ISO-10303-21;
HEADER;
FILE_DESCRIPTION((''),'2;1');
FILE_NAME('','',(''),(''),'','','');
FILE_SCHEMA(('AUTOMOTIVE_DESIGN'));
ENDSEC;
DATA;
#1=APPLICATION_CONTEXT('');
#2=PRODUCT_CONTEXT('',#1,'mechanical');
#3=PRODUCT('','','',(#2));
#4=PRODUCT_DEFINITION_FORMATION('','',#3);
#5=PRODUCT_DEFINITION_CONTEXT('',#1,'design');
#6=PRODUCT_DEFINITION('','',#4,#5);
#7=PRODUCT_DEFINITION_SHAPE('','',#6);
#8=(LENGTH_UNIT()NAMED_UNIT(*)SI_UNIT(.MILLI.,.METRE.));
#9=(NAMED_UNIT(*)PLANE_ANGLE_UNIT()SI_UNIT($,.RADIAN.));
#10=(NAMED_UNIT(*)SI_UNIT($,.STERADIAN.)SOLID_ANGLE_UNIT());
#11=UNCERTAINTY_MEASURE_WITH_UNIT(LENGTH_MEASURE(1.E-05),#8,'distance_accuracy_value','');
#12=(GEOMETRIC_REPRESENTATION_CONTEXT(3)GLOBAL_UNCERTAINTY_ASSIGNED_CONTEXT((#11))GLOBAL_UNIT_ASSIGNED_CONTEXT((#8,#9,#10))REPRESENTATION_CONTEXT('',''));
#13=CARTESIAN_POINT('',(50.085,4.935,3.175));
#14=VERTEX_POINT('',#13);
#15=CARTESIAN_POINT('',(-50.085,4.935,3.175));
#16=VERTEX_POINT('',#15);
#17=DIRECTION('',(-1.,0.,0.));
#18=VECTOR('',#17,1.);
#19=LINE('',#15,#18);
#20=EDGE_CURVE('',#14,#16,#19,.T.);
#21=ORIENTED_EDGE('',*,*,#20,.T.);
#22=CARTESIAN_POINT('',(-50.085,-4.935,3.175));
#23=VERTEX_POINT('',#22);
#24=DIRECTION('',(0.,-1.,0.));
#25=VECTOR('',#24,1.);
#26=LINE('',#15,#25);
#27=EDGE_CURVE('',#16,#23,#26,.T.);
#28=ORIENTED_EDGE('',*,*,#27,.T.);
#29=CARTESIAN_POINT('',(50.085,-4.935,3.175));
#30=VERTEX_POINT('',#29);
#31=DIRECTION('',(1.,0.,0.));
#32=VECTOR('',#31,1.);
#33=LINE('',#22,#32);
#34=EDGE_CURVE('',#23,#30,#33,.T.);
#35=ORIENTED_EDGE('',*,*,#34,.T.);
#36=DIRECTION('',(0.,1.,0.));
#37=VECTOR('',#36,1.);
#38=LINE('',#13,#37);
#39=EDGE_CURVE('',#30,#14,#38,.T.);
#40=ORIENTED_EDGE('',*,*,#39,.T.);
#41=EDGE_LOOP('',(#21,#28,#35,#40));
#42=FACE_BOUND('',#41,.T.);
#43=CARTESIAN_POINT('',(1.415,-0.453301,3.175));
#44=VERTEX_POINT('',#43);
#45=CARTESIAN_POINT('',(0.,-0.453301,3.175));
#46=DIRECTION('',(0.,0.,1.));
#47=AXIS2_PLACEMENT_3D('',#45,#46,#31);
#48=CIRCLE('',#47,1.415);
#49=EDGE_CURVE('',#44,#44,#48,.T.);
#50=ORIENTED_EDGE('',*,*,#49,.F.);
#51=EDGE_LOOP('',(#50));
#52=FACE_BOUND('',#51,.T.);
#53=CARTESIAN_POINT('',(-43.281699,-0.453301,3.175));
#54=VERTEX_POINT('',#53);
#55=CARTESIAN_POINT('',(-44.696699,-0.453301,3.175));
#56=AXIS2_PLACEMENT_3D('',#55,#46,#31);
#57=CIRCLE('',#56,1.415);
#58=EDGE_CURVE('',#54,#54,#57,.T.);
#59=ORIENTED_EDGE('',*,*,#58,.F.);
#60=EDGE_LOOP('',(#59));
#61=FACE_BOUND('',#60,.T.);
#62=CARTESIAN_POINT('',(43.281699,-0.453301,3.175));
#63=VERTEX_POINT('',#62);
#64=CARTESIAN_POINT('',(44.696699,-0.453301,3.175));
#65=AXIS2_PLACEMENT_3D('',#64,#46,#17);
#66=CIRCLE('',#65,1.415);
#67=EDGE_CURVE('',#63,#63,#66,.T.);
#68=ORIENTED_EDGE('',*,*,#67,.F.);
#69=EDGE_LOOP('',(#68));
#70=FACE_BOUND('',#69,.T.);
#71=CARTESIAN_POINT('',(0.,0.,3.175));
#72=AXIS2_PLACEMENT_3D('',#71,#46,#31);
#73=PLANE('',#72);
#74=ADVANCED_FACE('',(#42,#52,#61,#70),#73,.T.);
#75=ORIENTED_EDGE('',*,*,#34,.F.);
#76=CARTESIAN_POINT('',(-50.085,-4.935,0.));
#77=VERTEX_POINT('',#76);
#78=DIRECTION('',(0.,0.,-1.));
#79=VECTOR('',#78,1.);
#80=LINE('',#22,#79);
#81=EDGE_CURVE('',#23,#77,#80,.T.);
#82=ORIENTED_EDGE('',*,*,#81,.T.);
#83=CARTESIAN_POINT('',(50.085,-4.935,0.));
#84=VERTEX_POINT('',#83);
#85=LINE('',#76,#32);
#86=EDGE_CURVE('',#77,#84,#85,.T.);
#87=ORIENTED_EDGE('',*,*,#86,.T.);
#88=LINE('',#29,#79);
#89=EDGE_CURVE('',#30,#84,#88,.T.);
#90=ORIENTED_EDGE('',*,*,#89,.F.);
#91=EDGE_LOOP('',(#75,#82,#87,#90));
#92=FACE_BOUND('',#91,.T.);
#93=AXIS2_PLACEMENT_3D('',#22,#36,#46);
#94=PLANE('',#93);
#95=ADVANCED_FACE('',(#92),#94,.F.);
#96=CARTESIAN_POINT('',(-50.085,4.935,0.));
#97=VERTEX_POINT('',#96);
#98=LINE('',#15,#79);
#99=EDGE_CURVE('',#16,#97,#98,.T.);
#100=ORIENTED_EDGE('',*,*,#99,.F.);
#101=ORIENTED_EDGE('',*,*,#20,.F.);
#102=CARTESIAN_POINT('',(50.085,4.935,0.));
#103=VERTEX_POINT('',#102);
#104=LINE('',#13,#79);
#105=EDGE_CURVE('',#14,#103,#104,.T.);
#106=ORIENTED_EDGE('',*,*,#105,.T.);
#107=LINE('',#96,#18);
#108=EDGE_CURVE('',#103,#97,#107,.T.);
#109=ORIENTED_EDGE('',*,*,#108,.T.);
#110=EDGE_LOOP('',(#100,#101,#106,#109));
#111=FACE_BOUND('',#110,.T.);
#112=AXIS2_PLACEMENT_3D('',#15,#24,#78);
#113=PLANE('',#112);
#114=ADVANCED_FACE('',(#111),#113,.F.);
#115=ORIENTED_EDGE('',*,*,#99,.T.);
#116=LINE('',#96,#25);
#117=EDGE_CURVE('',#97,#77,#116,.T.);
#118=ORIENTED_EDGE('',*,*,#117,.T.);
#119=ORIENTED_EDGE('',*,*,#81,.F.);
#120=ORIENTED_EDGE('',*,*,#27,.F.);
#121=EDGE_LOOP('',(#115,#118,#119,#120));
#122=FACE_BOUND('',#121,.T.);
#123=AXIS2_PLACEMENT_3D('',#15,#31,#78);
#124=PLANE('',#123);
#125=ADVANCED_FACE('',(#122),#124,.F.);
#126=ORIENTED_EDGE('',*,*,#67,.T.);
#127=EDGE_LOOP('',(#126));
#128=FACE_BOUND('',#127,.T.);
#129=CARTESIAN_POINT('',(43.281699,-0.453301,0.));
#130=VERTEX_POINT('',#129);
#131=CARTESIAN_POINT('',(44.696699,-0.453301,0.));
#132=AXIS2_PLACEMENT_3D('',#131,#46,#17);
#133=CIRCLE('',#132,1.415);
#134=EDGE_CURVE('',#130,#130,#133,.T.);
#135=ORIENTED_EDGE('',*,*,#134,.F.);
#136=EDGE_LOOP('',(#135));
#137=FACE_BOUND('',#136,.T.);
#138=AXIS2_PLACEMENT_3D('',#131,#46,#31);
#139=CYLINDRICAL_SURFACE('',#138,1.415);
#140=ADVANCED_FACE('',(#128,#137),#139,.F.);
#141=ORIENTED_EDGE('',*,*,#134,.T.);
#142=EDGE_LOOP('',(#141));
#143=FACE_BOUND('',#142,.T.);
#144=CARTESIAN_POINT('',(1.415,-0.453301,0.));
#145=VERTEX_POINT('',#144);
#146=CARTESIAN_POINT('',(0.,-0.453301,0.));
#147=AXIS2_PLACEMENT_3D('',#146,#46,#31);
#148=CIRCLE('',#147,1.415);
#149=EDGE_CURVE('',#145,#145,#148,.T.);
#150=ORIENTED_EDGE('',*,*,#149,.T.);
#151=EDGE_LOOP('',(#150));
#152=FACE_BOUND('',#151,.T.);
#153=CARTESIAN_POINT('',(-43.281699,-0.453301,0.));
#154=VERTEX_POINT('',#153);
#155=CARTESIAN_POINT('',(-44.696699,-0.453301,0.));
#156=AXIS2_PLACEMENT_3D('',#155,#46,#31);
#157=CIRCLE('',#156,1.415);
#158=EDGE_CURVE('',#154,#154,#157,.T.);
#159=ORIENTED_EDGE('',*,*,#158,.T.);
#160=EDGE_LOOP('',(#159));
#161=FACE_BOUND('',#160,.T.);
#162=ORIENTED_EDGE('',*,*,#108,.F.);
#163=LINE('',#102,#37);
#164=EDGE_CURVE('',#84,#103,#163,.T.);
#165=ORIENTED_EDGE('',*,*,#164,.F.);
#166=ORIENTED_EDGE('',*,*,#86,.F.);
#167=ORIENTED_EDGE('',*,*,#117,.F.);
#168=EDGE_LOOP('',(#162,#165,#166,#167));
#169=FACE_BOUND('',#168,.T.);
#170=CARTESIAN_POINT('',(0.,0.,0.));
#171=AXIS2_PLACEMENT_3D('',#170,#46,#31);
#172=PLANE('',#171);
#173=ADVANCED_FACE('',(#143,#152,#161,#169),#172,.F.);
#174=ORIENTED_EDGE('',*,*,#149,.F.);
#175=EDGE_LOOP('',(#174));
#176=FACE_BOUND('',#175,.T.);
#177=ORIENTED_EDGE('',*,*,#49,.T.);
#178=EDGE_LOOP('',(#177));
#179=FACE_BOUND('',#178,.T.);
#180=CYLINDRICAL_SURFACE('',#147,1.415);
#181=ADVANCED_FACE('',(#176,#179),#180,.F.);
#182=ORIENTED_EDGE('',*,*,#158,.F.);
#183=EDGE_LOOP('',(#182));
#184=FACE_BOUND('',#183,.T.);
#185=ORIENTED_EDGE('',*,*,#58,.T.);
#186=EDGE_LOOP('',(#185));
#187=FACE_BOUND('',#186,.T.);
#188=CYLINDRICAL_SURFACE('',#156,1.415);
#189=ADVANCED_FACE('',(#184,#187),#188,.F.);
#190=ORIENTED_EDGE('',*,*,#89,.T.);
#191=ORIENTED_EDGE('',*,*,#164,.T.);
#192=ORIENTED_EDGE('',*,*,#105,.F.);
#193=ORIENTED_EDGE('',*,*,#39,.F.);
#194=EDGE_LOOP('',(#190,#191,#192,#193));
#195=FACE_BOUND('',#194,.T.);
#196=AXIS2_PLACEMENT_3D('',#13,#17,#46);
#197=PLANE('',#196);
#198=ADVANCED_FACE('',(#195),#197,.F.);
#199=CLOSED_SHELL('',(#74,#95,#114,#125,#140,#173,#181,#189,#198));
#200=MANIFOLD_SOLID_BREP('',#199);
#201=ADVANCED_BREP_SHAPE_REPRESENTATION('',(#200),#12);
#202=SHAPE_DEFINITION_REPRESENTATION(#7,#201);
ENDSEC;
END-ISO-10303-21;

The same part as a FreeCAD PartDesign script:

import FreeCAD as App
import Part
import Sketcher
from FreeCAD import Vector

doc = App.newDocument("Part")
params = doc.addObject("Spreadsheet::Sheet", "Params")
for row, (alias, value) in enumerate([
    ("pad1_length", "0.125 in"),
], start=1):
    params.set(f"A{row}", alias)
    params.set(f"B{row}", "=" + value)
    params.setAlias(f"B{row}", alias)

body = doc.addObject("PartDesign::Body", "Body")

# Sketch on XY plane
sketch1 = body.newObject("Sketcher::SketchObject", "Sketch")
sketch1.AttachmentSupport = (doc.getObject("XY_Plane"), [""])
sketch1.MapMode = "FlatFace"
sketch1.addGeometry([
    Part.LineSegment(Vector(-50.085, 4.935, 0), Vector(-50.085, -4.935, 0)),
    Part.LineSegment(Vector(-50.085, -4.935, 0), Vector(50.085, -4.935, 0)),
    Part.LineSegment(Vector(50.085, -4.935, 0), Vector(50.085, 4.935, 0)),
    Part.LineSegment(Vector(50.085, 4.935, 0), Vector(-50.085, 4.935, 0)),
], False)
sketch1.addConstraint([
    Sketcher.Constraint("Coincident", 0, 2, 1, 1),
    Sketcher.Constraint("Coincident", 1, 2, 2, 1),
    Sketcher.Constraint("Coincident", 2, 2, 3, 1),
    Sketcher.Constraint("Coincident", 3, 2, 0, 1),
    Sketcher.Constraint("Vertical", 0),
    Sketcher.Constraint("Horizontal", 1),
    Sketcher.Constraint("Vertical", 2),
    Sketcher.Constraint("Horizontal", 3),
    Sketcher.Constraint("Symmetric", 0, 2, 2, 2, -1, 1),
    Sketcher.Constraint("DistanceX", 1, 1, 1, 2, 100.17),
    Sketcher.Constraint("DistanceY", 0, 2, 0, 1, 9.87),
])
pad1 = body.newObject("PartDesign::Pad", "Pad")
pad1.Profile = sketch1
pad1.setExpression("Length", "Params.pad1_length")

# Sketch on XY plane
sketch2 = body.newObject("Sketcher::SketchObject", "Sketch001")
sketch2.AttachmentSupport = (doc.getObject("XY_Plane"), [""])
sketch2.MapMode = "FlatFace"
sketch2.AttachmentOffset = App.Placement(Vector(0, 0, 0.125 * 25.4), App.Rotation())
sketch2.addGeometry([
    Part.Circle(Vector(-44.696699, -0.453301, 0), Vector(0, 0, 1), 1.415),
    Part.Circle(Vector(44.696699, -0.453301, 0), Vector(0, 0, 1), 1.415),
], False)
sketch2.addConstraint([
    Sketcher.Constraint("Equal", 0, 1),
    Sketcher.Constraint("Symmetric", 0, 3, 1, 3, -2),
    Sketcher.Constraint("Diameter", 0, 2.83),
    Sketcher.Constraint("DistanceX", 0, 3, -1, 1, 44.696699),
    Sketcher.Constraint("DistanceY", 0, 3, -1, 1, 0.453301),
])
pocket1 = body.newObject("PartDesign::Pocket", "Pocket")
pocket1.Profile = sketch2
pocket1.Type = "ThroughAll"

# Sketch on XY plane
sketch3 = body.newObject("Sketcher::SketchObject", "Sketch002")
sketch3.AttachmentSupport = (doc.getObject("XY_Plane"), [""])
sketch3.MapMode = "FlatFace"
sketch3.AttachmentOffset = App.Placement(Vector(0, 0, 0.125 * 25.4), App.Rotation())
sketch3.addGeometry(Part.Circle(Vector(0, -0.453301, 0), Vector(0, 0, 1), 1.415), False)
sketch3.addConstraint([
    Sketcher.Constraint("PointOnObject", 0, 3, -2),
    Sketcher.Constraint("Diameter", 0, 2.83),
    Sketcher.Constraint("DistanceY", 0, 3, -1, 1, 0.453301),
])
pocket2 = body.newObject("PartDesign::Pocket", "Pocket001")
pocket2.Profile = sketch3
pocket2.Type = "ThroughAll"

doc.recompute()
